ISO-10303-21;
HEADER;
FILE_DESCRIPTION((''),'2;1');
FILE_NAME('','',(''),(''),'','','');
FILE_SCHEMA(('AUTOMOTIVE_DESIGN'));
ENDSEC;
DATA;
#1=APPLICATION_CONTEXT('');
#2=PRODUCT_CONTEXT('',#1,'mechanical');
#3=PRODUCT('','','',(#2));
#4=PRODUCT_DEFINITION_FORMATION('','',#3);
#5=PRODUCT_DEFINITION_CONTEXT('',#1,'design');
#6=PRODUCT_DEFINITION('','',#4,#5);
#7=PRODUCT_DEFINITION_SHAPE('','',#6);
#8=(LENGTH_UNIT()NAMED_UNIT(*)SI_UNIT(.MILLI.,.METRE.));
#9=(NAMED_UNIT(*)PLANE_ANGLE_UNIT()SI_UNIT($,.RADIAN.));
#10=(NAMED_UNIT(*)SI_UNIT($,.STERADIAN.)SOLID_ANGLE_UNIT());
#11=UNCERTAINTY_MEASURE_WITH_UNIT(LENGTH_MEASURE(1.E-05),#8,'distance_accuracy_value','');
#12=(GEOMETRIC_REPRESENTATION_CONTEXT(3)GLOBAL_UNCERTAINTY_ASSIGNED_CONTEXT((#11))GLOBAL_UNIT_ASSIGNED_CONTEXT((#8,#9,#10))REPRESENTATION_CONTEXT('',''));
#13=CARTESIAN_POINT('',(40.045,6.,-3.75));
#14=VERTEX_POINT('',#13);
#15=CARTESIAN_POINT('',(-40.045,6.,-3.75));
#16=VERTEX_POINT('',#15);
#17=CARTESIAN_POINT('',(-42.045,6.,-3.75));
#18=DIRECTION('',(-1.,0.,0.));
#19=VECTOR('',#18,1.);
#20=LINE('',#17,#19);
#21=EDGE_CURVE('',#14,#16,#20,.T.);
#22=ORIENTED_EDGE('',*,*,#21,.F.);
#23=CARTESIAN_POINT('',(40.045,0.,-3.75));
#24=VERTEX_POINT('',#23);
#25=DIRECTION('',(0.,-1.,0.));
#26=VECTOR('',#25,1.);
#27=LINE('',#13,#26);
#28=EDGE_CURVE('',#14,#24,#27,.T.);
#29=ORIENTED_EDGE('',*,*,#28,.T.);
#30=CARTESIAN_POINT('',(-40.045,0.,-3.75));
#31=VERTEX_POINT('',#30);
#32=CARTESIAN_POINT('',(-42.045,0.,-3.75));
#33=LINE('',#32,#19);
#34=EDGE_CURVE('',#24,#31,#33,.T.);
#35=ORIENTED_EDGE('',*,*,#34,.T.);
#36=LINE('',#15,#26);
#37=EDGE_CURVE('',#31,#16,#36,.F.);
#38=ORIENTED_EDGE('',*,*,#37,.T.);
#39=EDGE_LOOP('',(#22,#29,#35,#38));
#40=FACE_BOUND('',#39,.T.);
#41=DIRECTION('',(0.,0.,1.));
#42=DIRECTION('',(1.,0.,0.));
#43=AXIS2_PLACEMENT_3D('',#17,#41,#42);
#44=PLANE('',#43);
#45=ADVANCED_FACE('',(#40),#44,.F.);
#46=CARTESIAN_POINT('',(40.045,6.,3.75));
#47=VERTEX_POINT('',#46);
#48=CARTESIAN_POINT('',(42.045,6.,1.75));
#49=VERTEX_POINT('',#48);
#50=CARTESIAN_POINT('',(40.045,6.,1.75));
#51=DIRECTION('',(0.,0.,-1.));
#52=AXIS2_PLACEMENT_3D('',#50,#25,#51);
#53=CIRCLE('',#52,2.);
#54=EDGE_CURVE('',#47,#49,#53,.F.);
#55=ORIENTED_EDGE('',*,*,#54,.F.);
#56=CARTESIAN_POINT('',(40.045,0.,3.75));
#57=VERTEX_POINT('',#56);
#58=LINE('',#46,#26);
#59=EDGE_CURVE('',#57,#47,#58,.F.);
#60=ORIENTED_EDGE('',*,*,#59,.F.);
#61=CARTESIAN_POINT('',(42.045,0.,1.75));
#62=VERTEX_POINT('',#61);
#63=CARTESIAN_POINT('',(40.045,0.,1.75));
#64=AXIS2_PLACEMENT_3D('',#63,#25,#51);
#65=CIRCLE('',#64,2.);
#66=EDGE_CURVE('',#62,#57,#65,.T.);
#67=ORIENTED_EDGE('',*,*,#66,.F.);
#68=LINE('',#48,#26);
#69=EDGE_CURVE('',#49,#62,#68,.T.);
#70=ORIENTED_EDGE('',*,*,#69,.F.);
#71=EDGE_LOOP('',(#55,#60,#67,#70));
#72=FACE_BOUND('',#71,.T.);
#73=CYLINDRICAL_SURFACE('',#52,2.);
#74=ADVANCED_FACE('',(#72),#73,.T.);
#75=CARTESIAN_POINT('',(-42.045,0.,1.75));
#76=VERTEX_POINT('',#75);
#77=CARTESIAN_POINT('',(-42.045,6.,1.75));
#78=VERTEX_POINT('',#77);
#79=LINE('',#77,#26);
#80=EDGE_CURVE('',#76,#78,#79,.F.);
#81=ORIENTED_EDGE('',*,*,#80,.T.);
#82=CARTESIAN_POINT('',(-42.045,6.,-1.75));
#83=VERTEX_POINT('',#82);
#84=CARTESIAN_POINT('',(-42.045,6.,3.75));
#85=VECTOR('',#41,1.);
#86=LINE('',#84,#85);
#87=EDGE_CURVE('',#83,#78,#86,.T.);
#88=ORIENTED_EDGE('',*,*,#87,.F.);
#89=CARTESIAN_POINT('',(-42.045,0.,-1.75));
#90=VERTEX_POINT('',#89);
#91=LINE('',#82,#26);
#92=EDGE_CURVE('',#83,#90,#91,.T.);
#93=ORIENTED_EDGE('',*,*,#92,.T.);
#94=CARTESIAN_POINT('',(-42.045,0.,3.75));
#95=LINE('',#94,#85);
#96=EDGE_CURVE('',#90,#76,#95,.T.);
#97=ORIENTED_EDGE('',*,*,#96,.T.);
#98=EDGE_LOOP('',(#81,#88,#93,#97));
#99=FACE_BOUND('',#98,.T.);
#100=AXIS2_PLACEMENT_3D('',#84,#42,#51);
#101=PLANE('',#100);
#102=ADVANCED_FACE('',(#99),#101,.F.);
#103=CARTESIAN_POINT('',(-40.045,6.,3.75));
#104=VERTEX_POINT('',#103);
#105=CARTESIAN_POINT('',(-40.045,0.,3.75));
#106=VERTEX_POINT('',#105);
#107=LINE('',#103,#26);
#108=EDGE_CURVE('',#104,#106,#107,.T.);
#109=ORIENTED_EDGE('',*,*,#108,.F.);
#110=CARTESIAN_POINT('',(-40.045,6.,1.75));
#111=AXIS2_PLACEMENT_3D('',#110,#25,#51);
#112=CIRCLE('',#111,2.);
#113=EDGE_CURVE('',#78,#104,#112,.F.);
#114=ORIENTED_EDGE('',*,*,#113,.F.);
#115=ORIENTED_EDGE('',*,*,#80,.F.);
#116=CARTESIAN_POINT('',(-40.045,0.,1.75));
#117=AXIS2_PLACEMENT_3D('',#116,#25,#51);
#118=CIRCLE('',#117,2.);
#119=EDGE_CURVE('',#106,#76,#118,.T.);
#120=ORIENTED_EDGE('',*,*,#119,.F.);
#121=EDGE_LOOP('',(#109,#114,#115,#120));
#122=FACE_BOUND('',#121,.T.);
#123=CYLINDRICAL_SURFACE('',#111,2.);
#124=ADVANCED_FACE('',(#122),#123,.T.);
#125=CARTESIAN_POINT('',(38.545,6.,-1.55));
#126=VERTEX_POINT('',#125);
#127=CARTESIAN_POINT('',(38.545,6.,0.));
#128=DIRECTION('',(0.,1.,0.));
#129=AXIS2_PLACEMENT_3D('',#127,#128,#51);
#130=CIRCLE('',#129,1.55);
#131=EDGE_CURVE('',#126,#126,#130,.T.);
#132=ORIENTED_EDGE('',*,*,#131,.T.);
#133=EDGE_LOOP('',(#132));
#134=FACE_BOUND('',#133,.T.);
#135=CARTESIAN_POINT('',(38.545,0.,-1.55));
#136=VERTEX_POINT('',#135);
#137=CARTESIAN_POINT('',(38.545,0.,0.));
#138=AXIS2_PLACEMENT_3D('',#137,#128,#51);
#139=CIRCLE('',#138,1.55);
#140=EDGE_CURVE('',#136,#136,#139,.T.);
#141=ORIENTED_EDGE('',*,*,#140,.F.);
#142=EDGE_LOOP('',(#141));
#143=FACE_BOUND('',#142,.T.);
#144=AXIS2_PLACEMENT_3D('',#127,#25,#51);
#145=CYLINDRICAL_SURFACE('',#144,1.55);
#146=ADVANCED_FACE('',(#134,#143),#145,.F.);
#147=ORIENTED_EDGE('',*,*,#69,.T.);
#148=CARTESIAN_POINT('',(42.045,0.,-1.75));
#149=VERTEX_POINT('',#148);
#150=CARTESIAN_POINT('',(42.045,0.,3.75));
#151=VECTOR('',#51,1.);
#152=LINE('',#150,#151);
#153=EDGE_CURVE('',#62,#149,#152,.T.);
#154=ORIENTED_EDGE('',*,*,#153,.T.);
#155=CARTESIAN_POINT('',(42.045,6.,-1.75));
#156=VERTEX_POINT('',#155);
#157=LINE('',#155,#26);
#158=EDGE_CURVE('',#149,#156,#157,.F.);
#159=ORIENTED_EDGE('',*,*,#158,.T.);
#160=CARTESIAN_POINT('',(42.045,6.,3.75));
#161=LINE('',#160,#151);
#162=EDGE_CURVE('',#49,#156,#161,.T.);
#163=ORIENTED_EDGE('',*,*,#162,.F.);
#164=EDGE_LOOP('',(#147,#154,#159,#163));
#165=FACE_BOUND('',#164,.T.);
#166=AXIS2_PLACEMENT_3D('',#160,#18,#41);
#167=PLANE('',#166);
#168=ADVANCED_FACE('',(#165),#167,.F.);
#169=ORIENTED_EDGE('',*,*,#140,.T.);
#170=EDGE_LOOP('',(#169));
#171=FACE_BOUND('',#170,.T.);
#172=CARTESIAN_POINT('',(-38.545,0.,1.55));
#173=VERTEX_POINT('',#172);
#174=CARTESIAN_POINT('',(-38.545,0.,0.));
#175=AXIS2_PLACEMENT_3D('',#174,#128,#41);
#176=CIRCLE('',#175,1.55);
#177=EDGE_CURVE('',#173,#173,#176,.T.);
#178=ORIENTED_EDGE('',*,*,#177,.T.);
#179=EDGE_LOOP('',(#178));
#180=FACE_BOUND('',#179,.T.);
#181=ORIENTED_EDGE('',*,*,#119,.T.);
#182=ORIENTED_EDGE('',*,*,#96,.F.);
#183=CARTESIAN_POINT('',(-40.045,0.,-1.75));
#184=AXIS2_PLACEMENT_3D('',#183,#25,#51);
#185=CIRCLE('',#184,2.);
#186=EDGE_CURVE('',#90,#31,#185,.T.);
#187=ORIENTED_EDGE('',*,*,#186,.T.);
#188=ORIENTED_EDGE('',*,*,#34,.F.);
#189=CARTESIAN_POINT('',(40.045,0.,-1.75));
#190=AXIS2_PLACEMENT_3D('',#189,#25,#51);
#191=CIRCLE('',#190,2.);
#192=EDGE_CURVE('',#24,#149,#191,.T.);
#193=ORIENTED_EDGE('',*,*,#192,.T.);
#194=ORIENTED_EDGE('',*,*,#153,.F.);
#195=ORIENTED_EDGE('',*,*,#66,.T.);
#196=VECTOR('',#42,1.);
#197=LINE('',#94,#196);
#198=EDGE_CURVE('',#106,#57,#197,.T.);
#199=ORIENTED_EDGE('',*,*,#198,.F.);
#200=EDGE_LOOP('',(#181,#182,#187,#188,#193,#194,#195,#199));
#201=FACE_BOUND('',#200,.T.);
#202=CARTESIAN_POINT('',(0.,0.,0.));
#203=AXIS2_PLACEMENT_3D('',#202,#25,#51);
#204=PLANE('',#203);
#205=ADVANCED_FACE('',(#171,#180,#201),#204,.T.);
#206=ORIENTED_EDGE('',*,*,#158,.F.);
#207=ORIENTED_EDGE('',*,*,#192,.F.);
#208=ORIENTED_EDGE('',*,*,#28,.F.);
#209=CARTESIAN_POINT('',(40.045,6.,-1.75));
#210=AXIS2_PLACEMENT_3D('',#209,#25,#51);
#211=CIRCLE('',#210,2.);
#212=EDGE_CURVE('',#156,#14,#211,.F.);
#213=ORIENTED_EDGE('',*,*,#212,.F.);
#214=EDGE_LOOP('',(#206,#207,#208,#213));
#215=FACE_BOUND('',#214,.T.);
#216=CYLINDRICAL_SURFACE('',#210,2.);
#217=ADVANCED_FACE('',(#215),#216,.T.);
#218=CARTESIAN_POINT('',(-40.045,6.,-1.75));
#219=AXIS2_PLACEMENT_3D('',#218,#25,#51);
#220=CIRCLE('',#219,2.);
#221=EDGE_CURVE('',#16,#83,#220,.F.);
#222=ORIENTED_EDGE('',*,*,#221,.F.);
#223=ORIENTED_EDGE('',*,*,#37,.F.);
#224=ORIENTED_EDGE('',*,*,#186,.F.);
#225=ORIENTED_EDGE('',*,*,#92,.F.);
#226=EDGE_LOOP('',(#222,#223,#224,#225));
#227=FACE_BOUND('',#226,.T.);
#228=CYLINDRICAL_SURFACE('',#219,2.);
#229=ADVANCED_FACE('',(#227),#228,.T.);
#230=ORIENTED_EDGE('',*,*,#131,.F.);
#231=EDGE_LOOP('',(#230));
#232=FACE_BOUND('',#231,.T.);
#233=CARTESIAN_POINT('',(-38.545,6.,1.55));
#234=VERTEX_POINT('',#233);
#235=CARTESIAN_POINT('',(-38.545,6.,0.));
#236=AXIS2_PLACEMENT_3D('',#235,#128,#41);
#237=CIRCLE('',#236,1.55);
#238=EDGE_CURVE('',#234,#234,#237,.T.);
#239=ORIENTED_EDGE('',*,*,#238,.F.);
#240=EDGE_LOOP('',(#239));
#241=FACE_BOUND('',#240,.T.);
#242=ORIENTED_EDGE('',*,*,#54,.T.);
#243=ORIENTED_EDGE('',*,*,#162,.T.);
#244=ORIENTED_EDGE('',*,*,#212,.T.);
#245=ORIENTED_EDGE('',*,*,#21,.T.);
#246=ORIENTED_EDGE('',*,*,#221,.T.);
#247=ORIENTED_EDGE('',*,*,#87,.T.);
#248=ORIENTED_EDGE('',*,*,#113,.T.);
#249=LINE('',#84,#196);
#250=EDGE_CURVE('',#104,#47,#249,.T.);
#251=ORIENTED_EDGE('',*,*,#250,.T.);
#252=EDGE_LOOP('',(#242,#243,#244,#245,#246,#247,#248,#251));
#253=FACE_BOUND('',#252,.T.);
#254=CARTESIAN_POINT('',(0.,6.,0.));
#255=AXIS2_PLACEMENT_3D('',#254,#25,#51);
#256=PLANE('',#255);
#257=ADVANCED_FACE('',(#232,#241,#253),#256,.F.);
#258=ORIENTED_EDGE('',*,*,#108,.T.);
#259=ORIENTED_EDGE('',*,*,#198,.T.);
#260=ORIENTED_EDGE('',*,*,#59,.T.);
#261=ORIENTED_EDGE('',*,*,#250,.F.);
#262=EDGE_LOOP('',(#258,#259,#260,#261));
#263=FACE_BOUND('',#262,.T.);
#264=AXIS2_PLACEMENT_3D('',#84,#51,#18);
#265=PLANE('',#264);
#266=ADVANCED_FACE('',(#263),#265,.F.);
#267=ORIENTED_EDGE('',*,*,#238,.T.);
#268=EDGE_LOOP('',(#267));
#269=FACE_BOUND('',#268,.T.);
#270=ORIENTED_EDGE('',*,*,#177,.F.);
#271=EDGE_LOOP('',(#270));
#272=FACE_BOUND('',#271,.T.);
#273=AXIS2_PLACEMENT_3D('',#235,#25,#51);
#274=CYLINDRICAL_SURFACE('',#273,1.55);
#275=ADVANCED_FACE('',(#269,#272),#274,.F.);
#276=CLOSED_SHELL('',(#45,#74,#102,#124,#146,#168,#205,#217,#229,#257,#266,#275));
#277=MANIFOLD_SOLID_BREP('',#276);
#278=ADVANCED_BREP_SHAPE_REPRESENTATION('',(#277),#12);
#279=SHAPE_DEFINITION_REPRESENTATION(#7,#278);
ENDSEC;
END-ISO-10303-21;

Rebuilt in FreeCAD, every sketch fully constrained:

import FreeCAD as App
import Part
import Sketcher

V = App.Vector
Q = App.Units.Quantity


def edges_at(feature, points):
    """Names of the edges that pass closest to the given points."""
    edges = feature.Shape.Edges
    near = lambda p: min(range(len(edges)), key=lambda i: edges[i].distToShape(Part.Vertex(*p))[0])
    return sorted({f"Edge{near(p) + 1}" for p in points})


def add_polygon(sketch, points):
    """Adds a closed chain of lines whose ends are joined by coincident constraints."""
    first, n = sketch.GeometryCount, len(points)
    for a, b in zip(points, points[1:] + points[:1]):
        sketch.addGeometry(Part.LineSegment(App.Vector(*a, 0), App.Vector(*b, 0)), False)
    for i in range(n):
        sketch.addConstraint(Sketcher.Constraint("Coincident", first + i, 2, first + (i + 1) % n, 1))

doc = App.newDocument("Part")
params = doc.addObject("Spreadsheet::Sheet", "Params")
for row, (alias, value) in enumerate([
    ("sketch1_diameter", "3.1 mm"),
    ("sketch1_height", "7.5 mm"),
    ("sketch1_width", "84.09 mm"),
    ("pad1_length", "6 mm"),
    ("fillet_radius", "2 mm"),
], start=1):
    params.set(f"A{row}", alias)
    params.set(f"B{row}", "=" + value)
    params.setAlias(f"B{row}", alias)

body = doc.addObject("PartDesign::Body", "Body")

sketch1 = doc.addObject("Sketcher::SketchObject", "Sketch")
body.addObject(sketch1)
sketch1.AttachmentSupport = (doc.XZ_Plane, [""])
sketch1.MapMode = "FlatFace"
add_polygon(sketch1, [(-42, -3.8), (-42, 3.8), (42, 3.8), (42, -3.8)])
sketch1.addGeometry(Part.Circle(V(-38.5, 0, 0), V(0, 0, 1), 1.6), False)
sketch1.addGeometry(Part.Circle(V(38.5, 0, 0), V(0, 0, 1), 1.6), False)
sketch1.addConstraint([
    Sketcher.Constraint("Vertical", 0),
    Sketcher.Constraint("Horizontal", 1),
    Sketcher.Constraint("Vertical", 2),
    Sketcher.Constraint("Horizontal", 3),
    Sketcher.Constraint("Equal", 4, 5),
    Sketcher.Constraint("Symmetric", 4, 3, 5, 3, -1, 1),
    Sketcher.Constraint("Symmetric", 0, 2, 2, 2, -1, 1),
    Sketcher.Constraint("PointOnObject", 4, 3, -1),
    Sketcher.Constraint("Diameter", 4, Q("3.1 mm")),
    Sketcher.Constraint("DistanceY", 0, 1, 0, 2, Q("7.5 mm")),
    Sketcher.Constraint("DistanceX", 1, 1, 1, 2, Q("84.09 mm")),
    Sketcher.Constraint("DistanceX", 0, 2, 4, 3, Q("3.5 mm")),
])
sketch1.setExpression("Constraints[12]", "Params.sketch1_diameter")
sketch1.setExpression("Constraints[13]", "Params.sketch1_height")
sketch1.setExpression("Constraints[14]", "Params.sketch1_width")
pad1 = doc.addObject("PartDesign::Pad", "Pad")
body.addObject(pad1)
pad1.Profile = sketch1
pad1.setExpression("Length", "Params.pad1_length")
pad1.Reversed = True
doc.recompute()

fillet = doc.addObject("PartDesign::Fillet", "Fillet")
body.addObject(fillet)
fillet.Base = (pad1, edges_at(pad1, [
    (42.045, 3, 3.75),
    (-42.045, 3, 3.75),
    (-42.045, 3, -3.75),
    (42.045, 3, -3.75),
]))
fillet.setExpression("Radius", "Params.fillet_radius")

doc.recompute()
